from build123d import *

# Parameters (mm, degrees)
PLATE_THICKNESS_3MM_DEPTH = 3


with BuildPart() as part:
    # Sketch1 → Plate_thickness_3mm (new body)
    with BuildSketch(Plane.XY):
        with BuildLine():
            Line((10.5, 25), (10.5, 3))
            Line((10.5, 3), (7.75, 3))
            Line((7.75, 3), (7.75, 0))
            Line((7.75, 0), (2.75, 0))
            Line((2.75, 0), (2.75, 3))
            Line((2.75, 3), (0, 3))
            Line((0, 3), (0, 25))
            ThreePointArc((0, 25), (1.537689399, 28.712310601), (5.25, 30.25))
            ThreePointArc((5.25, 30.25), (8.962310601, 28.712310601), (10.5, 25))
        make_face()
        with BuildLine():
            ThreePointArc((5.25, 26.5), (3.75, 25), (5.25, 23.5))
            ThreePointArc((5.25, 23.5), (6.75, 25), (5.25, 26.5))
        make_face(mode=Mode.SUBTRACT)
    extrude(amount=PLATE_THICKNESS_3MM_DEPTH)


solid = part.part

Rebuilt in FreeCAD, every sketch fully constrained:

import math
import FreeCAD as App
import Part
import Sketcher

V = App.Vector

doc = App.newDocument("Part")
body = doc.addObject("PartDesign::Body", "Body")

# Sketch on XY plane
sketch1 = body.newObject("Sketcher::SketchObject", "Sketch")
sketch1.AttachmentSupport = (doc.getObject("XY_Plane"), [""])
sketch1.MapMode = "FlatFace"
sketch1.addGeometry(Part.LineSegment(V(10.5, 3, 0), V(10.5, 25, 0)), False)
sketch1.addGeometry(Part.ArcOfCircle(Part.Circle(V(5.2, 25, 0), V(0, 0, 1), 5.3), math.radians(0), math.radians(90)), False)
sketch1.addGeometry(Part.ArcOfCircle(Part.Circle(V(5.3, 25, 0), V(0, 0, 1), 5.3), math.radians(90), math.radians(180)), False)
sketch1.addGeometry(Part.LineSegment(V(0, 25, 0), V(0, 3, 0)), False)
sketch1.addGeometry(Part.LineSegment(V(0, 3, 0), V(2.8, 3, 0)), False)
sketch1.addGeometry(Part.LineSegment(V(2.8, 3, 0), V(2.8, 0, 0)), False)
sketch1.addGeometry(Part.LineSegment(V(2.8, 0, 0), V(7.8, 0, 0)), False)
sketch1.addGeometry(Part.LineSegment(V(7.8, 0, 0), V(7.8, 3, 0)), False)
sketch1.addGeometry(Part.LineSegment(V(7.8, 3, 0), V(10.5, 3, 0)), False)
sketch1.addGeometry(Part.Circle(V(5.2, 25, 0), V(0, 0, 1), 1.5), False)
sketch1.addConstraint(Sketcher.Constraint("Tangent", 0, 2, 1, 1))
sketch1.addConstraint(Sketcher.Constraint("Tangent", 1, 2, 2, 1))
sketch1.addConstraint(Sketcher.Constraint("Tangent", 2, 2, 3, 1))
sketch1.addConstraint(Sketcher.Constraint("Coincident", 3, 2, 4, 1))
sketch1.addConstraint(Sketcher.Constraint("Coincident", 4, 2, 5, 1))
sketch1.addConstraint(Sketcher.Constraint("Coincident", 5, 2, 6, 1))
sketch1.addConstraint(Sketcher.Constraint("Coincident", 6, 2, 7, 1))
sketch1.addConstraint(Sketcher.Constraint("Coincident", 7, 2, 8, 1))
sketch1.addConstraint(Sketcher.Constraint("Coincident", 8, 2, 0, 1))
sketch1.addConstraint(Sketcher.Constraint("Vertical", 0))
sketch1.addConstraint(Sketcher.Constraint("Vertical", 3))
sketch1.addConstraint(Sketcher.Constraint("Horizontal", 4))
sketch1.addConstraint(Sketcher.Constraint("Vertical", 5))
sketch1.addConstraint(Sketcher.Constraint("Horizontal", 6))
sketch1.addConstraint(Sketcher.Constraint("Vertical", 7))
sketch1.addConstraint(Sketcher.Constraint("Horizontal", 8))
sketch1.addConstraint(Sketcher.Constraint("Coincident", 9, 3, 1, 3))
sketch1.addConstraint(Sketcher.Constraint("Equal", 1, 2))
sketch1.addConstraint(Sketcher.Constraint("PointOnObject", 2, 2, -2))
sketch1.addConstraint(Sketcher.Constraint("PointOnObject", 5, 2, -1))
sketch1.addConstraint(Sketcher.Constraint("Horizontal", 4, 2, 7, 2))
sketch1.addConstraint(Sketcher.Constraint("Vertical", 9, 3, 1, 2))
sketch1.addConstraint(Sketcher.Constraint("Equal", 4, 8))
sketch1.addConstraint(Sketcher.Constraint("Diameter", 9, 3.0))
sketch1.addConstraint(Sketcher.Constraint("DistanceX", 6, 1, 6, 2, 5.0))
sketch1.addConstraint(Sketcher.Constraint("DistanceY", 0, 1, 0, 2, 22.0))
sketch1.addConstraint(Sketcher.Constraint("DistanceY", 5, 2, 5, 1, 3.0))
sketch1.addConstraint(Sketcher.Constraint("Radius", 1, 5.25))
pad1 = body.newObject("PartDesign::Pad", "Pad")
pad1.Profile = sketch1
pad1.Length = 3

doc.recompute()
